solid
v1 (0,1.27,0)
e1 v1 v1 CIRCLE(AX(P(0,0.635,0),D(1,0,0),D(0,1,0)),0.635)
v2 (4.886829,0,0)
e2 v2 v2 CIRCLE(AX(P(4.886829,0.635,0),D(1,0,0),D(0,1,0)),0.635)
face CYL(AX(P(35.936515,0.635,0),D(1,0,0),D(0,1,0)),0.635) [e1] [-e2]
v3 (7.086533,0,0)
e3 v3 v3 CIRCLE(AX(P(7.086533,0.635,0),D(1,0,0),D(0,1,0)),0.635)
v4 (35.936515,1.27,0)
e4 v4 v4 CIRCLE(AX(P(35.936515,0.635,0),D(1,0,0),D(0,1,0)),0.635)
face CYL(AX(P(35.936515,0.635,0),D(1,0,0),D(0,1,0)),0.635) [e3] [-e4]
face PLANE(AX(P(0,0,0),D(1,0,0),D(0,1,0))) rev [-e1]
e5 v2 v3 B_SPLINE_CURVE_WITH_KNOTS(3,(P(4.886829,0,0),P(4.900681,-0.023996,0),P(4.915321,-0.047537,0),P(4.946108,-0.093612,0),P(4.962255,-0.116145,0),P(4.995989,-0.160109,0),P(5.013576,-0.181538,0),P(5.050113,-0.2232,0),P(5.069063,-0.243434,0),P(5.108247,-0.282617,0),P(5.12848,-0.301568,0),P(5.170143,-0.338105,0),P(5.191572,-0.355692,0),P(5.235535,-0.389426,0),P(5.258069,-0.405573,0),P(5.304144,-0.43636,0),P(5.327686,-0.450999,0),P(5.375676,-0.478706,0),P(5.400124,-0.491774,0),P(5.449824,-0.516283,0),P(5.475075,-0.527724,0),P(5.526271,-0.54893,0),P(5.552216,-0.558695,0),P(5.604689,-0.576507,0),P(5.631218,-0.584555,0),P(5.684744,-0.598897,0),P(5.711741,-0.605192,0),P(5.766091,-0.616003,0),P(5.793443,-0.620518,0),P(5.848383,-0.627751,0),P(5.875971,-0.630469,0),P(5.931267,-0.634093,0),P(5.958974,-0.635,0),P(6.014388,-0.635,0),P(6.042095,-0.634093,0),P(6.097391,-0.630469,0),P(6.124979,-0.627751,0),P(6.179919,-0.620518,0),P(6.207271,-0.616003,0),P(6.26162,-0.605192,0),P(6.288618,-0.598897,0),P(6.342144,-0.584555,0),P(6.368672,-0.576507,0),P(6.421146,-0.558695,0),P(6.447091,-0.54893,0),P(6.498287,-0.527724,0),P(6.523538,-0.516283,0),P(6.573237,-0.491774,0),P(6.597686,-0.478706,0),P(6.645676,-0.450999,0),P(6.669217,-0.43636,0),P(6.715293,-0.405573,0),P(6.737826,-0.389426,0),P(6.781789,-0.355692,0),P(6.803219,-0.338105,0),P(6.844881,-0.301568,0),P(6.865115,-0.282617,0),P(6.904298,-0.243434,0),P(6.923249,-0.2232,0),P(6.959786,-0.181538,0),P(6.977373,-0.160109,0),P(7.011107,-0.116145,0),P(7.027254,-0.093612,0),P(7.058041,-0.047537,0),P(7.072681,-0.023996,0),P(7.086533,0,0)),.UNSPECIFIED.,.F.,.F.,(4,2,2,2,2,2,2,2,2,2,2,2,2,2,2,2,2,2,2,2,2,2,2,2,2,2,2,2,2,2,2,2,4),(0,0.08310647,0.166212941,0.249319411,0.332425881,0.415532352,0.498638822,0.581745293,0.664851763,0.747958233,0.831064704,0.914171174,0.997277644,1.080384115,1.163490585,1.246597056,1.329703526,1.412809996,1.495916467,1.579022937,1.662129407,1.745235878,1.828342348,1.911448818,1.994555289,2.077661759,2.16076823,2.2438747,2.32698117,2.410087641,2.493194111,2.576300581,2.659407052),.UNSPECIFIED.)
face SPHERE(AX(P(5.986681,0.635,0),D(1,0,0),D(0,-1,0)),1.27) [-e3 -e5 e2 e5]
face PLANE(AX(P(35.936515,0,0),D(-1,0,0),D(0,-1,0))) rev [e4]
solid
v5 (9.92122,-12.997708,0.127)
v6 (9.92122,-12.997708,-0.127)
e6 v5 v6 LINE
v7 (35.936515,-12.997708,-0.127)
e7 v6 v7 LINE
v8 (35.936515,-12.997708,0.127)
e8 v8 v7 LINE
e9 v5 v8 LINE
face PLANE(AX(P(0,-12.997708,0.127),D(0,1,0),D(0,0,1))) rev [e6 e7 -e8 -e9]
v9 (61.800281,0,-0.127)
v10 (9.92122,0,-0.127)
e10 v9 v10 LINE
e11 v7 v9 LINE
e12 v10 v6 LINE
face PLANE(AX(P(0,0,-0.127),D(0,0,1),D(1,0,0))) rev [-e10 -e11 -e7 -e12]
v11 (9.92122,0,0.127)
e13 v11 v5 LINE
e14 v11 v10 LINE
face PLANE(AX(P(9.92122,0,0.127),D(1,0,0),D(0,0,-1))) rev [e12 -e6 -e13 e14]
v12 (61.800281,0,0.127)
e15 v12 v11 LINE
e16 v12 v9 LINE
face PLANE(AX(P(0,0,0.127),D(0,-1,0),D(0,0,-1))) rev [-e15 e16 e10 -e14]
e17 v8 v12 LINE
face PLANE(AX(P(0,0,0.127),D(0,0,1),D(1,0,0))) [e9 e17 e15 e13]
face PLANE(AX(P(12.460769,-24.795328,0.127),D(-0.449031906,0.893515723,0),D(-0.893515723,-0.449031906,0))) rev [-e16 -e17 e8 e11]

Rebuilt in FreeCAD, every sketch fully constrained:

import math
import FreeCAD as App
import Part
import Sketcher

V = App.Vector
Q = App.Units.Quantity


def add_polygon(sketch, points):
    """Adds a closed chain of lines whose ends are joined by coincident constraints."""
    first, n = sketch.GeometryCount, len(points)
    for a, b in zip(points, points[1:] + points[:1]):
        sketch.addGeometry(Part.LineSegment(App.Vector(*a, 0), App.Vector(*b, 0)), False)
    for i in range(n):
        sketch.addConstraint(Sketcher.Constraint("Coincident", first + i, 2, first + (i + 1) % n, 1))

doc = App.newDocument("Part")
params = doc.addObject("Spreadsheet::Sheet", "Params")
for row, (alias, value) in enumerate([
    ("sketch1_radius", "0.05 in"),
    ("sketch1_height", "0.025 in"),
    ("revolution_angle", "360 deg"),
    ("pad1_length", "0.01 in"),
], start=1):
    params.set(f"A{row}", alias)
    params.set(f"B{row}", "=" + value)
    params.setAlias(f"B{row}", alias)

body = doc.addObject("PartDesign::Body", "Body")

# Sketch on XY plane
sketch1 = body.newObject("Sketcher::SketchObject", "Sketch")
sketch1.AttachmentSupport = (doc.getObject("XY_Plane"), [""])
sketch1.MapMode = "FlatFace"
sketch1.addGeometry([
    Part.ArcOfCircle(Part.Circle(V(6, 0.6, 0), V(0, 0, 1), 1.3), math.radians(-150), math.radians(-30)),  # 0
    Part.LineSegment(V(7.1, 0, 0), V(35.9, 0, 0)),  # 1
    Part.LineSegment(V(35.9, 0, 0), V(35.9, 0.6, 0)),  # 2
    Part.LineSegment(V(35.9, 0.6, 0), V(0, 0.6, 0)),  # 3
    Part.LineSegment(V(0, 0.6, 0), V(0, 0, 0)),  # 4
    Part.LineSegment(V(0, 0, 0), V(4.9, 0, 0)),  # 5
], False)
sketch1.addGeometry(Part.LineSegment(V(35.9, 0.6, 0), V(0, 0.6, 0)), True)  # axis
sketch1.addConstraint([
    Sketcher.Constraint("Coincident", 0, 2, 1, 1),
    Sketcher.Constraint("Coincident", 1, 2, 2, 1),
    Sketcher.Constraint("Coincident", 2, 2, 3, 1),
    Sketcher.Constraint("Coincident", 3, 2, 4, 1),
    Sketcher.Constraint("Coincident", 4, 2, 5, 1),
    Sketcher.Constraint("Coincident", 5, 2, 0, 1),
    Sketcher.Constraint("Horizontal", 1),
    Sketcher.Constraint("Vertical", 2),
    Sketcher.Constraint("Horizontal", 3),
    Sketcher.Constraint("Vertical", 4),
    Sketcher.Constraint("Horizontal", 5),
    Sketcher.Constraint("Horizontal", 6),
    Sketcher.Constraint("Coincident", 4, 2, -1, 1),
    Sketcher.Constraint("Coincident", 6, 1, 2, 2),
    Sketcher.Constraint("PointOnObject", 0, 2, -1),
    Sketcher.Constraint("PointOnObject", 6, 2, -2),
    Sketcher.Constraint("Horizontal", 0, 3, 2, 2),
    Sketcher.Constraint("Radius", 0, Q("0.05 in")),
    Sketcher.Constraint("DistanceY", 2, 1, 2, 2, Q("0.025 in")),
    Sketcher.Constraint("DistanceX", 1, 1, 1, 2, 28.849982),
    Sketcher.Constraint("DistanceX", 5, 1, 5, 2, 4.886829),
])
sketch1.setExpression("Constraints[17]", "Params.sketch1_radius")
sketch1.setExpression("Constraints[18]", "Params.sketch1_height")
revolution = body.newObject("PartDesign::Revolution", "Revolution")
revolution.Profile = sketch1
revolution.ReferenceAxis = (sketch1, ["Axis0"])
revolution.setExpression("Angle", "Params.revolution_angle")
body2 = doc.addObject("PartDesign::Body", "Body001")

# Sketch on XY plane
sketch2 = body2.newObject("Sketcher::SketchObject", "Sketch001")
sketch2.AttachmentSupport = (doc.getObject("XY_Plane001"), [""])
sketch2.MapMode = "FlatFace"
add_polygon(sketch2, [(36, -13), (62, 0), (36, 0), (10, 0), (10, -13)])  # lines 0-4
sketch2.addConstraint([
    Sketcher.Constraint("Horizontal", 1),
    Sketcher.Constraint("Horizontal", 2),
    Sketcher.Constraint("Vertical", 3),
    Sketcher.Constraint("Horizontal", 4),
    Sketcher.Constraint("PointOnObject", 0, 2, -1),
    Sketcher.Constraint("Vertical", 1, 2, 4, 2),
    Sketcher.Constraint("DistanceX", 1, 2, 1, 1, 25.863766),
    Sketcher.Constraint("DistanceX", 2, 2, 2, 1, 26.015295),
    Sketcher.Constraint("DistanceY", 3, 2, 3, 1, 12.997708),
    Sketcher.Constraint("DistanceX", -1, 1, 0, 2, 61.800281),
])
pad1 = body2.newObject("PartDesign::Pad", "Pad")
pad1.Profile = sketch2
pad1.setExpression("Length", "Params.pad1_length")
pad1.Midplane = True

doc.recompute()
